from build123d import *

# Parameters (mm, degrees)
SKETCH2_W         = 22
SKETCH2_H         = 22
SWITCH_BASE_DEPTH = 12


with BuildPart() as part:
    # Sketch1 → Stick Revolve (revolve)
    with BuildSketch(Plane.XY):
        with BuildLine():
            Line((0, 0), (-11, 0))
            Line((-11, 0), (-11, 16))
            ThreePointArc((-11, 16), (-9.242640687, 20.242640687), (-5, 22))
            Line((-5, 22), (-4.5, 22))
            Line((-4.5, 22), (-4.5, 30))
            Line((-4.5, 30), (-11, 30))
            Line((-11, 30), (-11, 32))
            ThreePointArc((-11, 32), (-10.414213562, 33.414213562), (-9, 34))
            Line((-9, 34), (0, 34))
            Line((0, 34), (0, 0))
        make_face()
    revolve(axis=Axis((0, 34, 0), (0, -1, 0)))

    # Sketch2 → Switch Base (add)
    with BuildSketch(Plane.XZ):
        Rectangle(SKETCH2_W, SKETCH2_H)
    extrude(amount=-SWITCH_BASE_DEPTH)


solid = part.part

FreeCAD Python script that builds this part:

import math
import FreeCAD as App
import Part
import Sketcher


def add_polygon(sketch, points):
    """Adds a closed chain of lines whose ends are joined by coincident constraints."""
    first, n = sketch.GeometryCount, len(points)
    for a, b in zip(points, points[1:] + points[:1]):
        sketch.addGeometry(Part.LineSegment(App.Vector(*a, 0), App.Vector(*b, 0)), False)
    for i in range(n):
        sketch.addConstraint(Sketcher.Constraint("Coincident", first + i, 2, first + (i + 1) % n, 1))

doc = App.newDocument("Part")
params = doc.addObject("Spreadsheet::Sheet", "Params")
for row, (alias, value) in enumerate([
    ("sketch1_radius", "2 mm"),
    ("sketch1_radius2", "6 mm"),
    ("sketch1_width", "11 mm"),
    ("sketch1_height", "34 mm"),
    ("sketch1_height2", "2 mm"),
    ("revolution_angle", "360 deg"),
    ("sketch2_width", "22 mm"),
    ("pad1_length", "12 mm"),
], start=1):
    params.set(f"A{row}", alias)
    params.set(f"B{row}", "=" + value)
    params.setAlias(f"B{row}", alias)

body = doc.addObject("PartDesign::Body", "Body")

# Sketch on XY plane
sketch1 = body.newObject("Sketcher::SketchObject", "Sketch")
sketch1.AttachmentSupport = (doc.getObject("XY_Plane"), [""])
sketch1.MapMode = "FlatFace"
sketch1.addGeometry([
    Part.LineSegment(App.Vector(-11, 0, 0), App.Vector(0, 0, 0)),  # 0
    Part.LineSegment(App.Vector(0, 0, 0), App.Vector(0, 34, 0)),  # 1
    Part.LineSegment(App.Vector(0, 34, 0), App.Vector(-9, 34, 0)),  # 2
    Part.ArcOfCircle(Part.Circle(App.Vector(-9, 32, 0), App.Vector(0, 0, 1), 2), math.radians(90), math.radians(180)),  # 3
    Part.LineSegment(App.Vector(-11, 32, 0), App.Vector(-11, 30, 0)),  # 4
    Part.LineSegment(App.Vector(-11, 30, 0), App.Vector(-4.5, 30, 0)),  # 5
    Part.LineSegment(App.Vector(-4.5, 30, 0), App.Vector(-4.5, 22, 0)),  # 6
    Part.LineSegment(App.Vector(-4.5, 22, 0), App.Vector(-5, 22, 0)),  # 7
    Part.ArcOfCircle(Part.Circle(App.Vector(-5, 16, 0), App.Vector(0, 0, 1), 6), math.radians(90), math.radians(180)),  # 8
    Part.LineSegment(App.Vector(-11, 16, 0), App.Vector(-11, 0, 0)),  # 9
], False)
sketch1.addConstraint([
    Sketcher.Constraint("Coincident", 0, 2, 1, 1),
    Sketcher.Constraint("Coincident", 1, 2, 2, 1),
    Sketcher.Constraint("Tangent", 2, 2, 3, 1),
    Sketcher.Constraint("Tangent", 3, 2, 4, 1),
    Sketcher.Constraint("Coincident", 4, 2, 5, 1),
    Sketcher.Constraint("Coincident", 5, 2, 6, 1),
    Sketcher.Constraint("Coincident", 6, 2, 7, 1),
    Sketcher.Constraint("Tangent", 7, 2, 8, 1),
    Sketcher.Constraint("Tangent", 8, 2, 9, 1),
    Sketcher.Constraint("Coincident", 9, 2, 0, 1),
    Sketcher.Constraint("Horizontal", 0),
    Sketcher.Constraint("Vertical", 1),
    Sketcher.Constraint("Horizontal", 2),
    Sketcher.Constraint("Vertical", 4),
    Sketcher.Constraint("Horizontal", 5),
    Sketcher.Constraint("Vertical", 6),
    Sketcher.Constraint("Horizontal", 7),
    Sketcher.Constraint("Vertical", 9),
    Sketcher.Constraint("Coincident", 0, 2, -1, 1),
    Sketcher.Constraint("Vertical", 4, 2, 8, 2),
    Sketcher.Constraint("Radius", 3, 2.0),
    Sketcher.Constraint("Radius", 8, 6.0),
    Sketcher.Constraint("DistanceX", 0, 1, 0, 2, 11.0),
    Sketcher.Constraint("DistanceY", 1, 1, 1, 2, 34.0),
    Sketcher.Constraint("DistanceY", 4, 2, 4, 1, 2.0),
    Sketcher.Constraint("DistanceY", 6, 2, 6, 1, 8.0),
    Sketcher.Constraint("DistanceX", 5, 1, 5, 2, 6.5),
])
sketch1.setExpression("Constraints[20]", "Params.sketch1_radius")
sketch1.setExpression("Constraints[21]", "Params.sketch1_radius2")
sketch1.setExpression("Constraints[22]", "Params.sketch1_width")
sketch1.setExpression("Constraints[23]", "Params.sketch1_height")
sketch1.setExpression("Constraints[24]", "Params.sketch1_height2")
revolution = body.newObject("PartDesign::Revolution", "Revolution")
revolution.Profile = sketch1
revolution.ReferenceAxis = (sketch1, ["V_Axis"])
revolution.setExpression("Angle", "Params.revolution_angle")

# Sketch on XZ plane
sketch2 = body.newObject("Sketcher::SketchObject", "Sketch001")
sketch2.AttachmentSupport = (doc.getObject("XZ_Plane"), [""])
sketch2.MapMode = "FlatFace"
add_polygon(sketch2, [(-11, 11), (-11, -11), (11, -11), (11, 11)])  # lines 0-3
sketch2.addConstraint([
    Sketcher.Constraint("Vertical", 0),
    Sketcher.Constraint("Horizontal", 1),
    Sketcher.Constraint("Vertical", 2),
    Sketcher.Constraint("Horizontal", 3),
    Sketcher.Constraint("Symmetric", 0, 2, 2, 2, -1, 1),
    Sketcher.Constraint("Equal", 3, 0),
    Sketcher.Constraint("DistanceX", 1, 1, 1, 2, 22.0),
])
sketch2.setExpression("Constraints[10]", "Params.sketch2_width")
pad1 = body.newObject("PartDesign::Pad", "Pad")
pad1.Profile = sketch2
pad1.setExpression("Length", "Params.pad1_length")
pad1.Reversed = True

doc.recompute()
